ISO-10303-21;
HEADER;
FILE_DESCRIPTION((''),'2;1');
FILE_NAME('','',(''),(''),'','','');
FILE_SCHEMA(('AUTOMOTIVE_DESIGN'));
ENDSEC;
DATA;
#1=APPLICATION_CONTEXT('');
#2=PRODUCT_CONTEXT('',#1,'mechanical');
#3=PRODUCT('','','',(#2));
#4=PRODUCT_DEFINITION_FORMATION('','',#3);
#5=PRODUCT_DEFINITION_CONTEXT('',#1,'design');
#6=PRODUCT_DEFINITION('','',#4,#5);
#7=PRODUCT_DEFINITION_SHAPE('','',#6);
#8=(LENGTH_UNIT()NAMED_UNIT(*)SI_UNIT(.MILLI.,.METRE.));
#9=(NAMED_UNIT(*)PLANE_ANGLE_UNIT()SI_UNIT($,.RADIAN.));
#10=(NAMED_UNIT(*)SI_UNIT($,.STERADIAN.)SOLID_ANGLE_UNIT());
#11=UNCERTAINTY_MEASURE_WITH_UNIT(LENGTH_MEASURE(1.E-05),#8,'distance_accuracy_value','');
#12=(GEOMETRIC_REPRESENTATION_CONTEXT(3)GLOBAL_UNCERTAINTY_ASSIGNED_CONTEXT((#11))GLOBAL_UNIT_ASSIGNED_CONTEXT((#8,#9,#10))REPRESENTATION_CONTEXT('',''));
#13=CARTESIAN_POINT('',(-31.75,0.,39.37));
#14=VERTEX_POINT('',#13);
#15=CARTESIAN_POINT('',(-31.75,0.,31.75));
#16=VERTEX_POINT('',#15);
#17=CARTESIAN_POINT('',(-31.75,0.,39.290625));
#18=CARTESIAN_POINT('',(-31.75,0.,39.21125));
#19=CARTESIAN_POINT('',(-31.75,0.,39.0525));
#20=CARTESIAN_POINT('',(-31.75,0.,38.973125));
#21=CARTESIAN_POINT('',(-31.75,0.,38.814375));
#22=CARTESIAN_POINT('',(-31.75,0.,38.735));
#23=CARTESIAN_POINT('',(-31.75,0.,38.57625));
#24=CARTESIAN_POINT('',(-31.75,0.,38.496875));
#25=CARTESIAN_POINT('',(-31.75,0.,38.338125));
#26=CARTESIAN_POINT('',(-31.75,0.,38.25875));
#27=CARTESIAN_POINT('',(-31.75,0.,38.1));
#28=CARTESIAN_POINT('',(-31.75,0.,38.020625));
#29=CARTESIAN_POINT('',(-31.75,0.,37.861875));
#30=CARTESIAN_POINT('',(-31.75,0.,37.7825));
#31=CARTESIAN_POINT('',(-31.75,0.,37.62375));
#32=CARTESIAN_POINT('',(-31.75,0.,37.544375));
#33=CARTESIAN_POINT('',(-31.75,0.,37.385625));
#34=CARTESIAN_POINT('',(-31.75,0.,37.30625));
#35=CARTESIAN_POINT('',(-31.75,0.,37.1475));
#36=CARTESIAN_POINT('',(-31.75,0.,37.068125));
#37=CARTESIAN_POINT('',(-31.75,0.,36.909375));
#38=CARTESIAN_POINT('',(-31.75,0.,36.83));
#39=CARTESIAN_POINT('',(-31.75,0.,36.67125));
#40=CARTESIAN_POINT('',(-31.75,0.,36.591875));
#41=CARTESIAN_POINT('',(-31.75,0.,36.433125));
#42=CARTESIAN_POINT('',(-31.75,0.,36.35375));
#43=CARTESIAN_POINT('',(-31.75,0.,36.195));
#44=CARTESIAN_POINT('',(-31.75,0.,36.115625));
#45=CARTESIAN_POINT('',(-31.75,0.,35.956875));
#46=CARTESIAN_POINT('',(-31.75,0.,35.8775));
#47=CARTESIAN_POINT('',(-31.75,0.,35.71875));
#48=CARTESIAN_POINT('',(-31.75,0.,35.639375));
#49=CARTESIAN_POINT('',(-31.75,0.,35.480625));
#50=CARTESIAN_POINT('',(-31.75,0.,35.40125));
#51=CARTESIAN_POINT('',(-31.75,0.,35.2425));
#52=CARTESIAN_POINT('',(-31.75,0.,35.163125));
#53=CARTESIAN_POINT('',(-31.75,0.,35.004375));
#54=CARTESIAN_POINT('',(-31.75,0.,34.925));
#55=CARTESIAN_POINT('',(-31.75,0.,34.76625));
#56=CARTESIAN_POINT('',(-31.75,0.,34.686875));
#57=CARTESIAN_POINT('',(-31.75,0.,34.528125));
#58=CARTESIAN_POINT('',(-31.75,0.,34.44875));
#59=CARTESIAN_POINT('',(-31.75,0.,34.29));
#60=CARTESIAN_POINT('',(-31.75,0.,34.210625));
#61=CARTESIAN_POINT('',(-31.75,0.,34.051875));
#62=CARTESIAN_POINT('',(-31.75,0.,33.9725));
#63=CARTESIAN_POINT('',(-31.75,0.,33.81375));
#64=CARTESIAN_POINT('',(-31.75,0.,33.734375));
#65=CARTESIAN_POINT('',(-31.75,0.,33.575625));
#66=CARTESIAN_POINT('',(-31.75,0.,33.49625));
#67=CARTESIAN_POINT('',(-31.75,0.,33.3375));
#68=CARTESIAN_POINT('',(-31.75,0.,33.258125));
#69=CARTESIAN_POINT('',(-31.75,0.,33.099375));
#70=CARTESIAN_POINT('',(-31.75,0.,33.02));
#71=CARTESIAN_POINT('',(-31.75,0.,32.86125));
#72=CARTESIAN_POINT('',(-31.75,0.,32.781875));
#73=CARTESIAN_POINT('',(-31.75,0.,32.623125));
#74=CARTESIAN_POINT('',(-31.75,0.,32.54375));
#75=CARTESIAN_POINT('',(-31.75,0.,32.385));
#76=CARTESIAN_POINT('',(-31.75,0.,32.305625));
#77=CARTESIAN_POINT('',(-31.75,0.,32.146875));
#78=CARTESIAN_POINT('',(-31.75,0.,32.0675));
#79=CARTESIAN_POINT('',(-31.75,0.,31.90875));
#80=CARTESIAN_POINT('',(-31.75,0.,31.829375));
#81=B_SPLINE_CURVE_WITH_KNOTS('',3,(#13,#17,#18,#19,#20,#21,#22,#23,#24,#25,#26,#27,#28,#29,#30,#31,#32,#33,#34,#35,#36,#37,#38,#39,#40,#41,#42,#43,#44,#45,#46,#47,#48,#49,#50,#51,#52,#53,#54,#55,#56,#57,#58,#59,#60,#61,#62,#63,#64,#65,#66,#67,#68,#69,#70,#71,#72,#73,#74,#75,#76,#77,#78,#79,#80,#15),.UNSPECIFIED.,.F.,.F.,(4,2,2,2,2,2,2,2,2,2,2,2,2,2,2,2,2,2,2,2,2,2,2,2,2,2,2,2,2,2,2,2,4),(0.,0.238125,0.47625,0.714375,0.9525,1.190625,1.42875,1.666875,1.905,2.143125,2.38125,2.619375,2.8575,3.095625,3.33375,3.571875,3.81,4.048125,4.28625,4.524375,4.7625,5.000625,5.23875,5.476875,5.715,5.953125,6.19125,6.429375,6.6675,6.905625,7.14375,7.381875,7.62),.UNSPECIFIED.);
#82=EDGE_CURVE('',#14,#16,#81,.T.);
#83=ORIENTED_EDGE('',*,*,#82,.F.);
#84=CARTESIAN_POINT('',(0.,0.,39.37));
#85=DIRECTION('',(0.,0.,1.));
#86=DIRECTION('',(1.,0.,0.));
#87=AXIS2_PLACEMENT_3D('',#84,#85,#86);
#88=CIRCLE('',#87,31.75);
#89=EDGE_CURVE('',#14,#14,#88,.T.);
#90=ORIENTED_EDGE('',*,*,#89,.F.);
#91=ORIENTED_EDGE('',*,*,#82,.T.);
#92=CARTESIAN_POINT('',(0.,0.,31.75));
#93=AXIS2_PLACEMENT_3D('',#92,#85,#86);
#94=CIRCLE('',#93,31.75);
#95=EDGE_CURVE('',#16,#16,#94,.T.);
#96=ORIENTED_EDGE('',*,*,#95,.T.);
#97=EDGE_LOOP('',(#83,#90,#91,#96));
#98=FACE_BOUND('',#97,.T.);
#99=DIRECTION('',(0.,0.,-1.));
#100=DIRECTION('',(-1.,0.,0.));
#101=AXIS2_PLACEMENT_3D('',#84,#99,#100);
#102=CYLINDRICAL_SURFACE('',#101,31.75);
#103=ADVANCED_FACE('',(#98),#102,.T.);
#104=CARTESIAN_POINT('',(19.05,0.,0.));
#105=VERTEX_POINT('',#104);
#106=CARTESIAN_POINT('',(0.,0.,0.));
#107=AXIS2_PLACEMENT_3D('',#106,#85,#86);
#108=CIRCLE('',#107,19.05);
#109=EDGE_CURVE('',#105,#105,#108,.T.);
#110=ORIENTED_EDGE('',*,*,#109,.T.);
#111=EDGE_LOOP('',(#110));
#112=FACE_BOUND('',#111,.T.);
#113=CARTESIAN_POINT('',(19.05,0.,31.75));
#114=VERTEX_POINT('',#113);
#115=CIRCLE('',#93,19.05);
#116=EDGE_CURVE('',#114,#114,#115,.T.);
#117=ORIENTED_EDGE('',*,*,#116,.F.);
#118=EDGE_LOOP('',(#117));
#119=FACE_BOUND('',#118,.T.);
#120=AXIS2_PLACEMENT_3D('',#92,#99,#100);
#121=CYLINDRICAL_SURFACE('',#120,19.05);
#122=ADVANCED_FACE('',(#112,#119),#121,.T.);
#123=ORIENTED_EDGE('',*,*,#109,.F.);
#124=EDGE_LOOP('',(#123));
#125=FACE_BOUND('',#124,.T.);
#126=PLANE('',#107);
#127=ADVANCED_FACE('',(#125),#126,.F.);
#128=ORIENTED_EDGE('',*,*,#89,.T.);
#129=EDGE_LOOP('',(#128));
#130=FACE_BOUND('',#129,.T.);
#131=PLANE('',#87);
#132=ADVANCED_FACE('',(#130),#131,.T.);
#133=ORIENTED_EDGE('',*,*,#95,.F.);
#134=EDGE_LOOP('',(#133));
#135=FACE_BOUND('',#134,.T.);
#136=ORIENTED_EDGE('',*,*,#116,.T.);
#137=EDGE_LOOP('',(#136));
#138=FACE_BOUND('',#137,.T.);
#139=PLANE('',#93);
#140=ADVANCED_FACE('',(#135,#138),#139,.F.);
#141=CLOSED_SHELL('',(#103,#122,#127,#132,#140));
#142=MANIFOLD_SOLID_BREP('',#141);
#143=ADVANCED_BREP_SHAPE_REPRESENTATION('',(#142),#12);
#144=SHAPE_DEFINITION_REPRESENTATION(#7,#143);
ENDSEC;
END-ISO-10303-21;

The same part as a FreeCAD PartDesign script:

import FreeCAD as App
import Part
import Sketcher
from FreeCAD import Vector
Q = App.Units.Quantity

doc = App.newDocument("Part")
body = doc.addObject("PartDesign::Body", "Body")

# Sketch on XY plane
sketch1 = body.newObject("Sketcher::SketchObject", "Sketch")
sketch1.AttachmentSupport = (doc.getObject("XY_Plane"), [""])
sketch1.MapMode = "FlatFace"
sketch1.addGeometry(Part.Circle(Vector(0, 0, 0), Vector(0, 0, 1), 19), False)
sketch1.addConstraint(Sketcher.Constraint("Coincident", 0, 3, -1, 1))
sketch1.addConstraint(Sketcher.Constraint("Diameter", 0, Q("1.5 in")))
pad1 = body.newObject("PartDesign::Pad", "Pad")
pad1.Profile = sketch1
pad1.Length = Q("1.25 in")

# Sketch on XY plane
sketch2 = body.newObject("Sketcher::SketchObject", "Sketch001")
sketch2.AttachmentSupport = (doc.getObject("XY_Plane"), [""])
sketch2.MapMode = "FlatFace"
sketch2.AttachmentOffset = App.Placement(Vector(0, 0, 1.25 * 25.4), App.Rotation())
sketch2.addGeometry(Part.Circle(Vector(0, 0, 0), Vector(0, 0, 1), 32), False)
sketch2.addConstraint(Sketcher.Constraint("Coincident", 0, 3, -1, 1))
sketch2.addConstraint(Sketcher.Constraint("Diameter", 0, Q("2.5 in")))
pad2 = body.newObject("PartDesign::Pad", "Pad001")
pad2.Profile = sketch2
pad2.Length = Q("0.3 in")

doc.recompute()
